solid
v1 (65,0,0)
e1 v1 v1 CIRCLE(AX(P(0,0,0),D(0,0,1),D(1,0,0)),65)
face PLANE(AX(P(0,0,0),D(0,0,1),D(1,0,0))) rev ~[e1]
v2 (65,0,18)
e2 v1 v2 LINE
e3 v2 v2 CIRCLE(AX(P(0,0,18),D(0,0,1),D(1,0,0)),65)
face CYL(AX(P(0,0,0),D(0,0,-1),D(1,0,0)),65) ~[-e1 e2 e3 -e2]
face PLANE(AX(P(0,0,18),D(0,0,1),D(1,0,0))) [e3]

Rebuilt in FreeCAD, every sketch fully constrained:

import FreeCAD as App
import Part
import Sketcher

V = App.Vector
Q = App.Units.Quantity

doc = App.newDocument("Part")
body = doc.addObject("PartDesign::Body", "Body")

# Sketch on XY plane
sketch1 = body.newObject("Sketcher::SketchObject", "Sketch")
sketch1.AttachmentSupport = (doc.getObject("XY_Plane"), [""])
sketch1.MapMode = "FlatFace"
sketch1.addGeometry(Part.Circle(V(0, 0, 0), V(0, 0, 1), 65), False)
sketch1.addConstraint(Sketcher.Constraint("Coincident", 0, 3, -1, 1))
sketch1.addConstraint(Sketcher.Constraint("Diameter", 0, Q("130 mm")))
pad1 = body.newObject("PartDesign::Pad", "Pad")
pad1.Profile = sketch1
pad1.Length = 18

doc.recompute()
